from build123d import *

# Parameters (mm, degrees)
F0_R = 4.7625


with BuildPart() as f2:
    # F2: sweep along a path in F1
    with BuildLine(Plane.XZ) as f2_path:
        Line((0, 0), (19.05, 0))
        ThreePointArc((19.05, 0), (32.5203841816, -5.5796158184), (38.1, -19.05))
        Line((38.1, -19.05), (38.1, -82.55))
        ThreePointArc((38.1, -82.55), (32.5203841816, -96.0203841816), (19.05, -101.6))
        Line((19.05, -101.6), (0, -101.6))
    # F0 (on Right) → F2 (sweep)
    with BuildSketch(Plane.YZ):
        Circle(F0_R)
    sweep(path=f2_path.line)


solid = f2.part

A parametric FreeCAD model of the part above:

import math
import FreeCAD as App
import Part
import Sketcher
from FreeCAD import Vector
Q = App.Units.Quantity

doc = App.newDocument("Part")
params = doc.addObject("Spreadsheet::Sheet", "Params")
for row, (alias, value) in enumerate([
    ("sketch1_diameter", "0.375 in"),
    ("sketch2_radius", "0.75 in"),
    ("sketch2_height", "2.5 in"),
    ("sketch2_width", "0.75 in"),
], start=1):
    params.set(f"A{row}", alias)
    params.set(f"B{row}", "=" + value)
    params.setAlias(f"B{row}", alias)

body = doc.addObject("PartDesign::Body", "Body")

sketch1 = doc.addObject("Sketcher::SketchObject", "Sketch")
body.addObject(sketch1)
sketch1.AttachmentSupport = (doc.YZ_Plane, [""])
sketch1.MapMode = "FlatFace"
sketch1.addGeometry(Part.Circle(Vector(0, 0, 0), Vector(0, 0, 1), 4.8), False)
sketch1.addConstraint([
    Sketcher.Constraint("Coincident", 0, 3, -1, 1),
    Sketcher.Constraint("Diameter", 0, Q("0.375 in")),
])
sketch1.setExpression("Constraints[1]", "Params.sketch1_diameter")

sketch2 = doc.addObject("Sketcher::SketchObject", "Sketch001")
body.addObject(sketch2)
sketch2.AttachmentSupport = (doc.XZ_Plane, [""])
sketch2.MapMode = "FlatFace"
sketch2.addGeometry([
    Part.LineSegment(Vector(0, 0, 0), Vector(19, 0, 0)),
    Part.ArcOfCircle(Part.Circle(Vector(19, -19, 0), Vector(0, 0, 1), 19), math.radians(0), math.radians(90)),
    Part.LineSegment(Vector(38, -19, 0), Vector(38, -83, 0)),
    Part.ArcOfCircle(Part.Circle(Vector(19, -83, 0), Vector(0, 0, 1), 19), math.radians(-90), math.radians(0)),
    Part.LineSegment(Vector(19, -102, 0), Vector(0, -102, 0)),
], False)
sketch2.addConstraint([
    Sketcher.Constraint("Tangent", 0, 2, 1, 2),
    Sketcher.Constraint("Tangent", 1, 1, 2, 1),
    Sketcher.Constraint("Tangent", 2, 2, 3, 2),
    Sketcher.Constraint("Tangent", 3, 1, 4, 1),
    Sketcher.Constraint("Horizontal", 0),
    Sketcher.Constraint("Vertical", 2),
    Sketcher.Constraint("Horizontal", 4),
    Sketcher.Constraint("Coincident", 0, 1, -1, 1),
    Sketcher.Constraint("Equal", 1, 3),
    Sketcher.Constraint("PointOnObject", 4, 2, -2),
    Sketcher.Constraint("Radius", 1, Q("0.75 in")),
    Sketcher.Constraint("DistanceY", 2, 2, 2, 1, Q("2.5 in")),
    Sketcher.Constraint("DistanceX", 0, 1, 0, 2, Q("0.75 in")),
])
sketch2.setExpression("Constraints[10]", "Params.sketch2_radius")
sketch2.setExpression("Constraints[11]", "Params.sketch2_height")
sketch2.setExpression("Constraints[12]", "Params.sketch2_width")
doc.recompute()

additivepipe = doc.addObject("PartDesign::AdditivePipe", "AdditivePipe")
body.addObject(additivepipe)
additivepipe.Profile = sketch1
additivepipe.Spine = (sketch2, ["Edge1", "Edge2", "Edge3", "Edge4", "Edge5"])

doc.recompute()
